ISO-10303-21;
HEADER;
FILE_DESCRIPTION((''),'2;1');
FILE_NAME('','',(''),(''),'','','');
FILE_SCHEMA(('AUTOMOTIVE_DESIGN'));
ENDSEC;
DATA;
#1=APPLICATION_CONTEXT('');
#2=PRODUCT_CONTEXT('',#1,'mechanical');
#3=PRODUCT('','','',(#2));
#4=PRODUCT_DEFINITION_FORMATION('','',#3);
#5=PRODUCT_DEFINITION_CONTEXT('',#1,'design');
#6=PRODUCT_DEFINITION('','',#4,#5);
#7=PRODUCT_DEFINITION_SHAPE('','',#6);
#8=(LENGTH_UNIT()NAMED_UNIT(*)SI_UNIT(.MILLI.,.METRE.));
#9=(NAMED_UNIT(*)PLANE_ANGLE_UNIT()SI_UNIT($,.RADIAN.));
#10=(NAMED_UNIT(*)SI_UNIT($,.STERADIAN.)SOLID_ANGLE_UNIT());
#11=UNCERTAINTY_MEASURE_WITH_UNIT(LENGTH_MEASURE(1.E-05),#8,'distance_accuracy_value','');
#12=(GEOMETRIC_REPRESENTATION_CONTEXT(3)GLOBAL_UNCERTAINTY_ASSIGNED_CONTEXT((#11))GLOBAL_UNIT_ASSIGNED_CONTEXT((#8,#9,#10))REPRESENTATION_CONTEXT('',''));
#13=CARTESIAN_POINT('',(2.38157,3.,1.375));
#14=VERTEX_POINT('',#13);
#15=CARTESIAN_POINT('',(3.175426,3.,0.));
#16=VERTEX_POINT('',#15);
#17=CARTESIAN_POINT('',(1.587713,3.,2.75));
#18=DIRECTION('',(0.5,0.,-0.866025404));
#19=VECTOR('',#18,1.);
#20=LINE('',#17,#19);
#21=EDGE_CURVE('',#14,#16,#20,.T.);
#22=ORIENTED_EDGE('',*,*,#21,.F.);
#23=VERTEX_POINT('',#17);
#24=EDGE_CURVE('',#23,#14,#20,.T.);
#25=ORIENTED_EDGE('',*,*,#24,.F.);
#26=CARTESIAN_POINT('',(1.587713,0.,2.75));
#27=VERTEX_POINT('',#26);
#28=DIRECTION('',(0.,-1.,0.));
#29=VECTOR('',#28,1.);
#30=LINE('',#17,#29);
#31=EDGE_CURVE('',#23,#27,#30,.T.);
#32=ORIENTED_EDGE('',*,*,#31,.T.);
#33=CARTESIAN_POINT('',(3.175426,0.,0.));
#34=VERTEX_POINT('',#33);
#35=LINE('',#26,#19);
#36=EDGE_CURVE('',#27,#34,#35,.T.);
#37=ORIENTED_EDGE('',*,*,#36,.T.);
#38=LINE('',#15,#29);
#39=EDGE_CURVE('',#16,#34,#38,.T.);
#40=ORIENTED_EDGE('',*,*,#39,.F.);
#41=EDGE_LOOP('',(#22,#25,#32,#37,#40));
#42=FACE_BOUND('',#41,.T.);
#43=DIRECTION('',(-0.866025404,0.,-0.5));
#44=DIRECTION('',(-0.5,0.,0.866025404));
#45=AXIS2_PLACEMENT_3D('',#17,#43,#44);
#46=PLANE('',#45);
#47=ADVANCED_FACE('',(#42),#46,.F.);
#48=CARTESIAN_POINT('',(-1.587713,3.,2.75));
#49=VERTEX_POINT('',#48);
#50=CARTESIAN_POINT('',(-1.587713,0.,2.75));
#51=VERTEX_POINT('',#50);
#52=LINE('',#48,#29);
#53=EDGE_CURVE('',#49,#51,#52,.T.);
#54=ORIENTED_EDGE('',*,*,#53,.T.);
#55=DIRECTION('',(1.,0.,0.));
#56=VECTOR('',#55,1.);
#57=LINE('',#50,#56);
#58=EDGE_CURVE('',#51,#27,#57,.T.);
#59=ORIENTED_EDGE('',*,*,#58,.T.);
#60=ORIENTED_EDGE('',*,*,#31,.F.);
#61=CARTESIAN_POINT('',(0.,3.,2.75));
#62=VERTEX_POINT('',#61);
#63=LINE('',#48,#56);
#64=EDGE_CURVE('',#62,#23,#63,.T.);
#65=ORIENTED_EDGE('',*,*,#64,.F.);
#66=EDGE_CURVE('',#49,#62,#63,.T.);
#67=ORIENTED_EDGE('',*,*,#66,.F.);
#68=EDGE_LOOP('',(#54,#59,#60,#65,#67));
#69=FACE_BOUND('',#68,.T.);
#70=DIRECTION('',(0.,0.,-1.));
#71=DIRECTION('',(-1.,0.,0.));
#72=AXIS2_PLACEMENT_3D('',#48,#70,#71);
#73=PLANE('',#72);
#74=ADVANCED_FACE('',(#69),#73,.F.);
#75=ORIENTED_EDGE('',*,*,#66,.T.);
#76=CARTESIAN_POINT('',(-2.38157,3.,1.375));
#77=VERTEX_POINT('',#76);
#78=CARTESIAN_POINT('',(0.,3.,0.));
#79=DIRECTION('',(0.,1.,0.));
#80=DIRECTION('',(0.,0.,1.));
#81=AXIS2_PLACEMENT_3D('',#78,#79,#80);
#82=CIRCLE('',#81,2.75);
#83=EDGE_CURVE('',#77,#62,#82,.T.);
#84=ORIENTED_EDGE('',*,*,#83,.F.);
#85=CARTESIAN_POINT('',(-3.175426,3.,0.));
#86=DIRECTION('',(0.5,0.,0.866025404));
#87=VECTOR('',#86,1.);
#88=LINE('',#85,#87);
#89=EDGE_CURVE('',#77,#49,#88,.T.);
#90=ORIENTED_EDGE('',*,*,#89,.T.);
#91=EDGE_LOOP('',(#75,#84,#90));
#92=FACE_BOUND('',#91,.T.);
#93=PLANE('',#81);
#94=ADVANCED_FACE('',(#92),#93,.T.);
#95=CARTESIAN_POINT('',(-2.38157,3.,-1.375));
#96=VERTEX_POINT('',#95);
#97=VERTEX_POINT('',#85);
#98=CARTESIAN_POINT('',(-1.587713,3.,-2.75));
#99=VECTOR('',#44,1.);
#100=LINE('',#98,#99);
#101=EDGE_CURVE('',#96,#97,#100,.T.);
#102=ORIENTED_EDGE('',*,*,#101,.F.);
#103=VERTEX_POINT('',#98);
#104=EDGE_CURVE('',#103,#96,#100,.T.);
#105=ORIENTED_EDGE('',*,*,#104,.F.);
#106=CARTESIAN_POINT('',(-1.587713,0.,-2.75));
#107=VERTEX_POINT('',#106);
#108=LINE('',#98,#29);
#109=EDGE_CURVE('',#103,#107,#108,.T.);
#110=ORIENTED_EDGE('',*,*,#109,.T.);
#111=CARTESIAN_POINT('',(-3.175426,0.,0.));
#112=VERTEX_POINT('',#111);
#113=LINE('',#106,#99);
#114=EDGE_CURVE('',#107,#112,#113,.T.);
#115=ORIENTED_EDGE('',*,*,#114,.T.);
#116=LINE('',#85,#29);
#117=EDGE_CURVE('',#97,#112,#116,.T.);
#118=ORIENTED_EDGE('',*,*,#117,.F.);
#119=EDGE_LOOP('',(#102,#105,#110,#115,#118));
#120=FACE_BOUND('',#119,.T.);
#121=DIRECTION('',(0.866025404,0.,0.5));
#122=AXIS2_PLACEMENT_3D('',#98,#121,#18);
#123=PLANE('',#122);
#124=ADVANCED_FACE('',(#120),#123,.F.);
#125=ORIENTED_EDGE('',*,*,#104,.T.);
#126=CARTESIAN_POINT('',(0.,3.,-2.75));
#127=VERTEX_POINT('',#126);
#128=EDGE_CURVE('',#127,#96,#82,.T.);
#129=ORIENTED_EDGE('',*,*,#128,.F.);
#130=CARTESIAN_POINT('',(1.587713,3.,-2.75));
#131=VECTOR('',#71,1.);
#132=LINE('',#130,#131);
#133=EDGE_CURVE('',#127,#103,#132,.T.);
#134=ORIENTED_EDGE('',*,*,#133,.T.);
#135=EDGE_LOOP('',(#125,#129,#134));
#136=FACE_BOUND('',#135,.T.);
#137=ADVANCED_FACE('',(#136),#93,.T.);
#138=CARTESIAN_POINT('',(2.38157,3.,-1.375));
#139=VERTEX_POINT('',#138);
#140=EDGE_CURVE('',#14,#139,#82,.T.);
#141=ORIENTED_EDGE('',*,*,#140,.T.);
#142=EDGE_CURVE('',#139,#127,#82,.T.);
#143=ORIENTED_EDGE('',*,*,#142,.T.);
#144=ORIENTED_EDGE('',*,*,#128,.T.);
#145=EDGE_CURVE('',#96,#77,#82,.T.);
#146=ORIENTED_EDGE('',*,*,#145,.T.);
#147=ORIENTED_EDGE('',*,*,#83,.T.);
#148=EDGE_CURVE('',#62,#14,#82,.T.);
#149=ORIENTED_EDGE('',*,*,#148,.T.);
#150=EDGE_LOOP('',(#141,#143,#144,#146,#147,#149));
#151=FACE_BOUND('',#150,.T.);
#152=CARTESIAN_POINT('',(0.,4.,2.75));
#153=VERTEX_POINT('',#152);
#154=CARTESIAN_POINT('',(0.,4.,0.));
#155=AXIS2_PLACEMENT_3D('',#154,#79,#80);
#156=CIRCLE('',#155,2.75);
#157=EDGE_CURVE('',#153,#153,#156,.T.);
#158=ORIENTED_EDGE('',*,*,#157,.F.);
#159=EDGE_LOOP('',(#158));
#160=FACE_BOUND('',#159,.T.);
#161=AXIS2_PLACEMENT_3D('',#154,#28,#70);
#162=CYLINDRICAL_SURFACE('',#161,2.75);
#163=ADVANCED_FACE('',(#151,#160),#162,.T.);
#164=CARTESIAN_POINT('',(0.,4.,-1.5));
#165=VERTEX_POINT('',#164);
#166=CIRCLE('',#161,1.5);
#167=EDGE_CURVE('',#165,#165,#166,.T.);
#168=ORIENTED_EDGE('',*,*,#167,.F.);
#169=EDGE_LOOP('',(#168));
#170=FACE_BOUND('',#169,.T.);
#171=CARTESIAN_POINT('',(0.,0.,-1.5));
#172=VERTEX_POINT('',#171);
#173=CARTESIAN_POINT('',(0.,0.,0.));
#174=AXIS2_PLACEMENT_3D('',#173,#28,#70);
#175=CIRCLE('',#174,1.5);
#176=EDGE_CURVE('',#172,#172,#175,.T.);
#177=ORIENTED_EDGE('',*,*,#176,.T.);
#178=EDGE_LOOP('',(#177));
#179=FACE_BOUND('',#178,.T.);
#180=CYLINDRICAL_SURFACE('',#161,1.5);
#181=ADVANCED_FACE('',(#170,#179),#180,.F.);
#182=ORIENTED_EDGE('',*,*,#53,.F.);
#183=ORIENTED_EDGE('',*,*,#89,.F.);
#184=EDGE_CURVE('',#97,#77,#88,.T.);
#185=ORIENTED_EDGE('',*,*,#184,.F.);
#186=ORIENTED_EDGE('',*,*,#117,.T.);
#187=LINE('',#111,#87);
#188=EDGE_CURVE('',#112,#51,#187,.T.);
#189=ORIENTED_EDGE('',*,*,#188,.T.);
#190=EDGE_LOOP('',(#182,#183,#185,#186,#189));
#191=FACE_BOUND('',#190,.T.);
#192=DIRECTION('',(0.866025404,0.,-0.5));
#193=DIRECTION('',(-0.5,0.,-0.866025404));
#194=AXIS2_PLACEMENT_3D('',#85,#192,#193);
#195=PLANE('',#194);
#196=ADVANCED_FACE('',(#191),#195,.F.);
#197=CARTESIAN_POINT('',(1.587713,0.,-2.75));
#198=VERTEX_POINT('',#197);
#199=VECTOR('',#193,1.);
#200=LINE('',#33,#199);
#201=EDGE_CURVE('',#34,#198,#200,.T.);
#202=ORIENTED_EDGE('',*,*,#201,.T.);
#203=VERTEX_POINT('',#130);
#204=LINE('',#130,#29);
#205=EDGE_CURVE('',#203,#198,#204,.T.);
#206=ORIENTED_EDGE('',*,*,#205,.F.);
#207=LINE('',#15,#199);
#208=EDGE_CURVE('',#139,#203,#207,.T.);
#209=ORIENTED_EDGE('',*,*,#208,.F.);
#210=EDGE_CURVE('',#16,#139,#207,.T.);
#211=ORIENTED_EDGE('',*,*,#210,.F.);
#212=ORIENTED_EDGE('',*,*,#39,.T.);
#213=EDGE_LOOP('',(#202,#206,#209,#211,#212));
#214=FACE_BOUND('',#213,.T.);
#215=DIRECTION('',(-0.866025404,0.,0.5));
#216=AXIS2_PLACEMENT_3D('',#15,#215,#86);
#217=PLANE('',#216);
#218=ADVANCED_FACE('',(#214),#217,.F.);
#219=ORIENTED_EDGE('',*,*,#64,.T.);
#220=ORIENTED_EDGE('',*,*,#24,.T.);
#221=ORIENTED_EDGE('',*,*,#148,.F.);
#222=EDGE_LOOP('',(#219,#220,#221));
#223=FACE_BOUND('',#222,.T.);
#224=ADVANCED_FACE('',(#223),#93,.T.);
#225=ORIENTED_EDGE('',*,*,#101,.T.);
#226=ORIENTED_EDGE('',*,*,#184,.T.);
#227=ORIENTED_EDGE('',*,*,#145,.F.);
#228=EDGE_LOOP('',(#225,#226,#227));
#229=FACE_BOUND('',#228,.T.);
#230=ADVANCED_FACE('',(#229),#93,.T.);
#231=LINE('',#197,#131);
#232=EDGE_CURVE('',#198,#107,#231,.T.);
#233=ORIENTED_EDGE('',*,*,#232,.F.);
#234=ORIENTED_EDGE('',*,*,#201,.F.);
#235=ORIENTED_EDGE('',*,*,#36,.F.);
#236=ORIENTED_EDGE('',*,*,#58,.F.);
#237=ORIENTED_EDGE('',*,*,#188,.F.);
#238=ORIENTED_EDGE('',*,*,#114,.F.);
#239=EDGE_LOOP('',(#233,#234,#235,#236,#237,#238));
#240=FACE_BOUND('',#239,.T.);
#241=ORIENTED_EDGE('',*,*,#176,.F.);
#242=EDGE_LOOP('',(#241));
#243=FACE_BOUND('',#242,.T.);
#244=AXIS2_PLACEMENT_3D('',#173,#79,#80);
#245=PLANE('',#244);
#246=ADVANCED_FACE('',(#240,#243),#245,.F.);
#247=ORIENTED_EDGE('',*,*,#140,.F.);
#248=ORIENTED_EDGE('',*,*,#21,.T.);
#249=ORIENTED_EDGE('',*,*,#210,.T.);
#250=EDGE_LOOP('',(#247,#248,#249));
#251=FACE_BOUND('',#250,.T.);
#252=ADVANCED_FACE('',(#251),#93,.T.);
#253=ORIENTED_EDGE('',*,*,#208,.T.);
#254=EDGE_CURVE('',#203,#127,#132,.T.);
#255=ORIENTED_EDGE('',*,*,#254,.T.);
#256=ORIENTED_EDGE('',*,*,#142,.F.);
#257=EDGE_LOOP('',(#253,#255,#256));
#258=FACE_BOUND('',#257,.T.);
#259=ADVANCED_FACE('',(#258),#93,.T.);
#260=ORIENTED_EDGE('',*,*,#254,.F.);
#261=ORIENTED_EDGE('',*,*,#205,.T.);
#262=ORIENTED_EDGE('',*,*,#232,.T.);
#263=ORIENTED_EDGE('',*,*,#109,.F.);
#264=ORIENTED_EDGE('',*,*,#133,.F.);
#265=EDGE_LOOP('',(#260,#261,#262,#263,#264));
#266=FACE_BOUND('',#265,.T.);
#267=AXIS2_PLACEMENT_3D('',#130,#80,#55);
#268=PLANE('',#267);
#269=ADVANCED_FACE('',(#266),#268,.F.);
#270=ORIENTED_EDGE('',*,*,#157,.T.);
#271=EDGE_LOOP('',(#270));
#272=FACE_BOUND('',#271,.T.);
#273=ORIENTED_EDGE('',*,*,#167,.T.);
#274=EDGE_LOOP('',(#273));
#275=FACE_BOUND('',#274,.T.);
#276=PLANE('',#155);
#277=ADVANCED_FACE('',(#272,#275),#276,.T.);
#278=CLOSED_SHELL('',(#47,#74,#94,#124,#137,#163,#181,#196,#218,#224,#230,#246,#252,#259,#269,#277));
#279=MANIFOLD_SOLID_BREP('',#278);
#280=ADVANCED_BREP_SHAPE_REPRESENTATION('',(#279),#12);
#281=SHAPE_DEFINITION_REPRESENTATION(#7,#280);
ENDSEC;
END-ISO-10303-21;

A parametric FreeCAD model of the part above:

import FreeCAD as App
import Part
import Sketcher
from FreeCAD import Vector
Q = App.Units.Quantity

doc = App.newDocument("Part")
body = doc.addObject("PartDesign::Body", "Body")

sketch1 = doc.addObject("Sketcher::SketchObject", "Sketch")
body.addObject(sketch1)
sketch1.AttachmentSupport = (doc.XZ_Plane, [""])
sketch1.MapMode = "FlatFace"
sketch1.addGeometry([
    Part.LineSegment(Vector(3.175426, 0, 0), Vector(1.587713, -2.75, 0)),
    Part.LineSegment(Vector(1.587713, -2.75, 0), Vector(-1.587713, -2.75, 0)),
    Part.LineSegment(Vector(-1.587713, -2.75, 0), Vector(-3.175426, 0, 0)),
    Part.LineSegment(Vector(-3.175426, 0, 0), Vector(-1.587713, 2.75, 0)),
    Part.LineSegment(Vector(-1.587713, 2.75, 0), Vector(1.587713, 2.75, 0)),
    Part.LineSegment(Vector(1.587713, 2.75, 0), Vector(3.175426, 0, 0)),
], False)
sketch1.addConstraint([
    Sketcher.Constraint("Coincident", 0, 2, 1, 1),
    Sketcher.Constraint("Coincident", 1, 2, 2, 1),
    Sketcher.Constraint("Coincident", 2, 2, 3, 1),
    Sketcher.Constraint("Coincident", 3, 2, 4, 1),
    Sketcher.Constraint("Coincident", 4, 2, 5, 1),
    Sketcher.Constraint("Coincident", 5, 2, 0, 1),
    Sketcher.Constraint("Horizontal", 1),
    Sketcher.Constraint("Horizontal", 4),
    Sketcher.Constraint("Symmetric", 0, 2, 3, 2, -1, 1),
    Sketcher.Constraint("Symmetric", 2, 2, 5, 2, -1, 1),
    Sketcher.Constraint("PointOnObject", 2, 2, -1),
    Sketcher.Constraint("Parallel", 2, 5),
    Sketcher.Constraint("Vertical", 1, 2, 3, 2),
    Sketcher.Constraint("Angle", 0, Q("-120 deg")),
    Sketcher.Constraint("DistanceY", 1, 2, 3, 2, Q("5.5 mm")),
    Sketcher.Constraint("DistanceX", 1, 2, 1, 1, Q("3.175426 mm")),
])
pad1 = doc.addObject("PartDesign::Pad", "Pad")
body.addObject(pad1)
pad1.Profile = sketch1
pad1.Length = 3
pad1.Reversed = True

sketch2 = doc.addObject("Sketcher::SketchObject", "Sketch001")
body.addObject(sketch2)
sketch2.AttachmentSupport = (doc.XZ_Plane, [""])
sketch2.MapMode = "FlatFace"
sketch2.AttachmentOffset = App.Placement(Vector(0, 0, -3), App.Rotation())
sketch2.addGeometry(Part.Circle(Vector(0, 0, 0), Vector(0, 0, 1), 2.75), False)
sketch2.addConstraint([
    Sketcher.Constraint("Coincident", 0, 3, -1, 1),
    Sketcher.Constraint("Diameter", 0, Q("5.5 mm")),
])
pad2 = doc.addObject("PartDesign::Pad", "Pad001")
body.addObject(pad2)
pad2.Profile = sketch2
pad2.Length = 1
pad2.Reversed = True

sketch3 = doc.addObject("Sketcher::SketchObject", "Sketch002")
body.addObject(sketch3)
sketch3.AttachmentSupport = (doc.XZ_Plane, [""])
sketch3.MapMode = "FlatFace"
sketch3.addGeometry(Part.Circle(Vector(0, 0, 0), Vector(0, 0, 1), 1.5), False)
sketch3.addConstraint([
    Sketcher.Constraint("Coincident", 0, 3, -1, 1),
    Sketcher.Constraint("Diameter", 0, Q("3 mm")),
])
pocket1 = doc.addObject("PartDesign::Pocket", "Pocket")
body.addObject(pocket1)
pocket1.Profile = sketch3
pocket1.Type = "ThroughAll"

doc.recompute()
